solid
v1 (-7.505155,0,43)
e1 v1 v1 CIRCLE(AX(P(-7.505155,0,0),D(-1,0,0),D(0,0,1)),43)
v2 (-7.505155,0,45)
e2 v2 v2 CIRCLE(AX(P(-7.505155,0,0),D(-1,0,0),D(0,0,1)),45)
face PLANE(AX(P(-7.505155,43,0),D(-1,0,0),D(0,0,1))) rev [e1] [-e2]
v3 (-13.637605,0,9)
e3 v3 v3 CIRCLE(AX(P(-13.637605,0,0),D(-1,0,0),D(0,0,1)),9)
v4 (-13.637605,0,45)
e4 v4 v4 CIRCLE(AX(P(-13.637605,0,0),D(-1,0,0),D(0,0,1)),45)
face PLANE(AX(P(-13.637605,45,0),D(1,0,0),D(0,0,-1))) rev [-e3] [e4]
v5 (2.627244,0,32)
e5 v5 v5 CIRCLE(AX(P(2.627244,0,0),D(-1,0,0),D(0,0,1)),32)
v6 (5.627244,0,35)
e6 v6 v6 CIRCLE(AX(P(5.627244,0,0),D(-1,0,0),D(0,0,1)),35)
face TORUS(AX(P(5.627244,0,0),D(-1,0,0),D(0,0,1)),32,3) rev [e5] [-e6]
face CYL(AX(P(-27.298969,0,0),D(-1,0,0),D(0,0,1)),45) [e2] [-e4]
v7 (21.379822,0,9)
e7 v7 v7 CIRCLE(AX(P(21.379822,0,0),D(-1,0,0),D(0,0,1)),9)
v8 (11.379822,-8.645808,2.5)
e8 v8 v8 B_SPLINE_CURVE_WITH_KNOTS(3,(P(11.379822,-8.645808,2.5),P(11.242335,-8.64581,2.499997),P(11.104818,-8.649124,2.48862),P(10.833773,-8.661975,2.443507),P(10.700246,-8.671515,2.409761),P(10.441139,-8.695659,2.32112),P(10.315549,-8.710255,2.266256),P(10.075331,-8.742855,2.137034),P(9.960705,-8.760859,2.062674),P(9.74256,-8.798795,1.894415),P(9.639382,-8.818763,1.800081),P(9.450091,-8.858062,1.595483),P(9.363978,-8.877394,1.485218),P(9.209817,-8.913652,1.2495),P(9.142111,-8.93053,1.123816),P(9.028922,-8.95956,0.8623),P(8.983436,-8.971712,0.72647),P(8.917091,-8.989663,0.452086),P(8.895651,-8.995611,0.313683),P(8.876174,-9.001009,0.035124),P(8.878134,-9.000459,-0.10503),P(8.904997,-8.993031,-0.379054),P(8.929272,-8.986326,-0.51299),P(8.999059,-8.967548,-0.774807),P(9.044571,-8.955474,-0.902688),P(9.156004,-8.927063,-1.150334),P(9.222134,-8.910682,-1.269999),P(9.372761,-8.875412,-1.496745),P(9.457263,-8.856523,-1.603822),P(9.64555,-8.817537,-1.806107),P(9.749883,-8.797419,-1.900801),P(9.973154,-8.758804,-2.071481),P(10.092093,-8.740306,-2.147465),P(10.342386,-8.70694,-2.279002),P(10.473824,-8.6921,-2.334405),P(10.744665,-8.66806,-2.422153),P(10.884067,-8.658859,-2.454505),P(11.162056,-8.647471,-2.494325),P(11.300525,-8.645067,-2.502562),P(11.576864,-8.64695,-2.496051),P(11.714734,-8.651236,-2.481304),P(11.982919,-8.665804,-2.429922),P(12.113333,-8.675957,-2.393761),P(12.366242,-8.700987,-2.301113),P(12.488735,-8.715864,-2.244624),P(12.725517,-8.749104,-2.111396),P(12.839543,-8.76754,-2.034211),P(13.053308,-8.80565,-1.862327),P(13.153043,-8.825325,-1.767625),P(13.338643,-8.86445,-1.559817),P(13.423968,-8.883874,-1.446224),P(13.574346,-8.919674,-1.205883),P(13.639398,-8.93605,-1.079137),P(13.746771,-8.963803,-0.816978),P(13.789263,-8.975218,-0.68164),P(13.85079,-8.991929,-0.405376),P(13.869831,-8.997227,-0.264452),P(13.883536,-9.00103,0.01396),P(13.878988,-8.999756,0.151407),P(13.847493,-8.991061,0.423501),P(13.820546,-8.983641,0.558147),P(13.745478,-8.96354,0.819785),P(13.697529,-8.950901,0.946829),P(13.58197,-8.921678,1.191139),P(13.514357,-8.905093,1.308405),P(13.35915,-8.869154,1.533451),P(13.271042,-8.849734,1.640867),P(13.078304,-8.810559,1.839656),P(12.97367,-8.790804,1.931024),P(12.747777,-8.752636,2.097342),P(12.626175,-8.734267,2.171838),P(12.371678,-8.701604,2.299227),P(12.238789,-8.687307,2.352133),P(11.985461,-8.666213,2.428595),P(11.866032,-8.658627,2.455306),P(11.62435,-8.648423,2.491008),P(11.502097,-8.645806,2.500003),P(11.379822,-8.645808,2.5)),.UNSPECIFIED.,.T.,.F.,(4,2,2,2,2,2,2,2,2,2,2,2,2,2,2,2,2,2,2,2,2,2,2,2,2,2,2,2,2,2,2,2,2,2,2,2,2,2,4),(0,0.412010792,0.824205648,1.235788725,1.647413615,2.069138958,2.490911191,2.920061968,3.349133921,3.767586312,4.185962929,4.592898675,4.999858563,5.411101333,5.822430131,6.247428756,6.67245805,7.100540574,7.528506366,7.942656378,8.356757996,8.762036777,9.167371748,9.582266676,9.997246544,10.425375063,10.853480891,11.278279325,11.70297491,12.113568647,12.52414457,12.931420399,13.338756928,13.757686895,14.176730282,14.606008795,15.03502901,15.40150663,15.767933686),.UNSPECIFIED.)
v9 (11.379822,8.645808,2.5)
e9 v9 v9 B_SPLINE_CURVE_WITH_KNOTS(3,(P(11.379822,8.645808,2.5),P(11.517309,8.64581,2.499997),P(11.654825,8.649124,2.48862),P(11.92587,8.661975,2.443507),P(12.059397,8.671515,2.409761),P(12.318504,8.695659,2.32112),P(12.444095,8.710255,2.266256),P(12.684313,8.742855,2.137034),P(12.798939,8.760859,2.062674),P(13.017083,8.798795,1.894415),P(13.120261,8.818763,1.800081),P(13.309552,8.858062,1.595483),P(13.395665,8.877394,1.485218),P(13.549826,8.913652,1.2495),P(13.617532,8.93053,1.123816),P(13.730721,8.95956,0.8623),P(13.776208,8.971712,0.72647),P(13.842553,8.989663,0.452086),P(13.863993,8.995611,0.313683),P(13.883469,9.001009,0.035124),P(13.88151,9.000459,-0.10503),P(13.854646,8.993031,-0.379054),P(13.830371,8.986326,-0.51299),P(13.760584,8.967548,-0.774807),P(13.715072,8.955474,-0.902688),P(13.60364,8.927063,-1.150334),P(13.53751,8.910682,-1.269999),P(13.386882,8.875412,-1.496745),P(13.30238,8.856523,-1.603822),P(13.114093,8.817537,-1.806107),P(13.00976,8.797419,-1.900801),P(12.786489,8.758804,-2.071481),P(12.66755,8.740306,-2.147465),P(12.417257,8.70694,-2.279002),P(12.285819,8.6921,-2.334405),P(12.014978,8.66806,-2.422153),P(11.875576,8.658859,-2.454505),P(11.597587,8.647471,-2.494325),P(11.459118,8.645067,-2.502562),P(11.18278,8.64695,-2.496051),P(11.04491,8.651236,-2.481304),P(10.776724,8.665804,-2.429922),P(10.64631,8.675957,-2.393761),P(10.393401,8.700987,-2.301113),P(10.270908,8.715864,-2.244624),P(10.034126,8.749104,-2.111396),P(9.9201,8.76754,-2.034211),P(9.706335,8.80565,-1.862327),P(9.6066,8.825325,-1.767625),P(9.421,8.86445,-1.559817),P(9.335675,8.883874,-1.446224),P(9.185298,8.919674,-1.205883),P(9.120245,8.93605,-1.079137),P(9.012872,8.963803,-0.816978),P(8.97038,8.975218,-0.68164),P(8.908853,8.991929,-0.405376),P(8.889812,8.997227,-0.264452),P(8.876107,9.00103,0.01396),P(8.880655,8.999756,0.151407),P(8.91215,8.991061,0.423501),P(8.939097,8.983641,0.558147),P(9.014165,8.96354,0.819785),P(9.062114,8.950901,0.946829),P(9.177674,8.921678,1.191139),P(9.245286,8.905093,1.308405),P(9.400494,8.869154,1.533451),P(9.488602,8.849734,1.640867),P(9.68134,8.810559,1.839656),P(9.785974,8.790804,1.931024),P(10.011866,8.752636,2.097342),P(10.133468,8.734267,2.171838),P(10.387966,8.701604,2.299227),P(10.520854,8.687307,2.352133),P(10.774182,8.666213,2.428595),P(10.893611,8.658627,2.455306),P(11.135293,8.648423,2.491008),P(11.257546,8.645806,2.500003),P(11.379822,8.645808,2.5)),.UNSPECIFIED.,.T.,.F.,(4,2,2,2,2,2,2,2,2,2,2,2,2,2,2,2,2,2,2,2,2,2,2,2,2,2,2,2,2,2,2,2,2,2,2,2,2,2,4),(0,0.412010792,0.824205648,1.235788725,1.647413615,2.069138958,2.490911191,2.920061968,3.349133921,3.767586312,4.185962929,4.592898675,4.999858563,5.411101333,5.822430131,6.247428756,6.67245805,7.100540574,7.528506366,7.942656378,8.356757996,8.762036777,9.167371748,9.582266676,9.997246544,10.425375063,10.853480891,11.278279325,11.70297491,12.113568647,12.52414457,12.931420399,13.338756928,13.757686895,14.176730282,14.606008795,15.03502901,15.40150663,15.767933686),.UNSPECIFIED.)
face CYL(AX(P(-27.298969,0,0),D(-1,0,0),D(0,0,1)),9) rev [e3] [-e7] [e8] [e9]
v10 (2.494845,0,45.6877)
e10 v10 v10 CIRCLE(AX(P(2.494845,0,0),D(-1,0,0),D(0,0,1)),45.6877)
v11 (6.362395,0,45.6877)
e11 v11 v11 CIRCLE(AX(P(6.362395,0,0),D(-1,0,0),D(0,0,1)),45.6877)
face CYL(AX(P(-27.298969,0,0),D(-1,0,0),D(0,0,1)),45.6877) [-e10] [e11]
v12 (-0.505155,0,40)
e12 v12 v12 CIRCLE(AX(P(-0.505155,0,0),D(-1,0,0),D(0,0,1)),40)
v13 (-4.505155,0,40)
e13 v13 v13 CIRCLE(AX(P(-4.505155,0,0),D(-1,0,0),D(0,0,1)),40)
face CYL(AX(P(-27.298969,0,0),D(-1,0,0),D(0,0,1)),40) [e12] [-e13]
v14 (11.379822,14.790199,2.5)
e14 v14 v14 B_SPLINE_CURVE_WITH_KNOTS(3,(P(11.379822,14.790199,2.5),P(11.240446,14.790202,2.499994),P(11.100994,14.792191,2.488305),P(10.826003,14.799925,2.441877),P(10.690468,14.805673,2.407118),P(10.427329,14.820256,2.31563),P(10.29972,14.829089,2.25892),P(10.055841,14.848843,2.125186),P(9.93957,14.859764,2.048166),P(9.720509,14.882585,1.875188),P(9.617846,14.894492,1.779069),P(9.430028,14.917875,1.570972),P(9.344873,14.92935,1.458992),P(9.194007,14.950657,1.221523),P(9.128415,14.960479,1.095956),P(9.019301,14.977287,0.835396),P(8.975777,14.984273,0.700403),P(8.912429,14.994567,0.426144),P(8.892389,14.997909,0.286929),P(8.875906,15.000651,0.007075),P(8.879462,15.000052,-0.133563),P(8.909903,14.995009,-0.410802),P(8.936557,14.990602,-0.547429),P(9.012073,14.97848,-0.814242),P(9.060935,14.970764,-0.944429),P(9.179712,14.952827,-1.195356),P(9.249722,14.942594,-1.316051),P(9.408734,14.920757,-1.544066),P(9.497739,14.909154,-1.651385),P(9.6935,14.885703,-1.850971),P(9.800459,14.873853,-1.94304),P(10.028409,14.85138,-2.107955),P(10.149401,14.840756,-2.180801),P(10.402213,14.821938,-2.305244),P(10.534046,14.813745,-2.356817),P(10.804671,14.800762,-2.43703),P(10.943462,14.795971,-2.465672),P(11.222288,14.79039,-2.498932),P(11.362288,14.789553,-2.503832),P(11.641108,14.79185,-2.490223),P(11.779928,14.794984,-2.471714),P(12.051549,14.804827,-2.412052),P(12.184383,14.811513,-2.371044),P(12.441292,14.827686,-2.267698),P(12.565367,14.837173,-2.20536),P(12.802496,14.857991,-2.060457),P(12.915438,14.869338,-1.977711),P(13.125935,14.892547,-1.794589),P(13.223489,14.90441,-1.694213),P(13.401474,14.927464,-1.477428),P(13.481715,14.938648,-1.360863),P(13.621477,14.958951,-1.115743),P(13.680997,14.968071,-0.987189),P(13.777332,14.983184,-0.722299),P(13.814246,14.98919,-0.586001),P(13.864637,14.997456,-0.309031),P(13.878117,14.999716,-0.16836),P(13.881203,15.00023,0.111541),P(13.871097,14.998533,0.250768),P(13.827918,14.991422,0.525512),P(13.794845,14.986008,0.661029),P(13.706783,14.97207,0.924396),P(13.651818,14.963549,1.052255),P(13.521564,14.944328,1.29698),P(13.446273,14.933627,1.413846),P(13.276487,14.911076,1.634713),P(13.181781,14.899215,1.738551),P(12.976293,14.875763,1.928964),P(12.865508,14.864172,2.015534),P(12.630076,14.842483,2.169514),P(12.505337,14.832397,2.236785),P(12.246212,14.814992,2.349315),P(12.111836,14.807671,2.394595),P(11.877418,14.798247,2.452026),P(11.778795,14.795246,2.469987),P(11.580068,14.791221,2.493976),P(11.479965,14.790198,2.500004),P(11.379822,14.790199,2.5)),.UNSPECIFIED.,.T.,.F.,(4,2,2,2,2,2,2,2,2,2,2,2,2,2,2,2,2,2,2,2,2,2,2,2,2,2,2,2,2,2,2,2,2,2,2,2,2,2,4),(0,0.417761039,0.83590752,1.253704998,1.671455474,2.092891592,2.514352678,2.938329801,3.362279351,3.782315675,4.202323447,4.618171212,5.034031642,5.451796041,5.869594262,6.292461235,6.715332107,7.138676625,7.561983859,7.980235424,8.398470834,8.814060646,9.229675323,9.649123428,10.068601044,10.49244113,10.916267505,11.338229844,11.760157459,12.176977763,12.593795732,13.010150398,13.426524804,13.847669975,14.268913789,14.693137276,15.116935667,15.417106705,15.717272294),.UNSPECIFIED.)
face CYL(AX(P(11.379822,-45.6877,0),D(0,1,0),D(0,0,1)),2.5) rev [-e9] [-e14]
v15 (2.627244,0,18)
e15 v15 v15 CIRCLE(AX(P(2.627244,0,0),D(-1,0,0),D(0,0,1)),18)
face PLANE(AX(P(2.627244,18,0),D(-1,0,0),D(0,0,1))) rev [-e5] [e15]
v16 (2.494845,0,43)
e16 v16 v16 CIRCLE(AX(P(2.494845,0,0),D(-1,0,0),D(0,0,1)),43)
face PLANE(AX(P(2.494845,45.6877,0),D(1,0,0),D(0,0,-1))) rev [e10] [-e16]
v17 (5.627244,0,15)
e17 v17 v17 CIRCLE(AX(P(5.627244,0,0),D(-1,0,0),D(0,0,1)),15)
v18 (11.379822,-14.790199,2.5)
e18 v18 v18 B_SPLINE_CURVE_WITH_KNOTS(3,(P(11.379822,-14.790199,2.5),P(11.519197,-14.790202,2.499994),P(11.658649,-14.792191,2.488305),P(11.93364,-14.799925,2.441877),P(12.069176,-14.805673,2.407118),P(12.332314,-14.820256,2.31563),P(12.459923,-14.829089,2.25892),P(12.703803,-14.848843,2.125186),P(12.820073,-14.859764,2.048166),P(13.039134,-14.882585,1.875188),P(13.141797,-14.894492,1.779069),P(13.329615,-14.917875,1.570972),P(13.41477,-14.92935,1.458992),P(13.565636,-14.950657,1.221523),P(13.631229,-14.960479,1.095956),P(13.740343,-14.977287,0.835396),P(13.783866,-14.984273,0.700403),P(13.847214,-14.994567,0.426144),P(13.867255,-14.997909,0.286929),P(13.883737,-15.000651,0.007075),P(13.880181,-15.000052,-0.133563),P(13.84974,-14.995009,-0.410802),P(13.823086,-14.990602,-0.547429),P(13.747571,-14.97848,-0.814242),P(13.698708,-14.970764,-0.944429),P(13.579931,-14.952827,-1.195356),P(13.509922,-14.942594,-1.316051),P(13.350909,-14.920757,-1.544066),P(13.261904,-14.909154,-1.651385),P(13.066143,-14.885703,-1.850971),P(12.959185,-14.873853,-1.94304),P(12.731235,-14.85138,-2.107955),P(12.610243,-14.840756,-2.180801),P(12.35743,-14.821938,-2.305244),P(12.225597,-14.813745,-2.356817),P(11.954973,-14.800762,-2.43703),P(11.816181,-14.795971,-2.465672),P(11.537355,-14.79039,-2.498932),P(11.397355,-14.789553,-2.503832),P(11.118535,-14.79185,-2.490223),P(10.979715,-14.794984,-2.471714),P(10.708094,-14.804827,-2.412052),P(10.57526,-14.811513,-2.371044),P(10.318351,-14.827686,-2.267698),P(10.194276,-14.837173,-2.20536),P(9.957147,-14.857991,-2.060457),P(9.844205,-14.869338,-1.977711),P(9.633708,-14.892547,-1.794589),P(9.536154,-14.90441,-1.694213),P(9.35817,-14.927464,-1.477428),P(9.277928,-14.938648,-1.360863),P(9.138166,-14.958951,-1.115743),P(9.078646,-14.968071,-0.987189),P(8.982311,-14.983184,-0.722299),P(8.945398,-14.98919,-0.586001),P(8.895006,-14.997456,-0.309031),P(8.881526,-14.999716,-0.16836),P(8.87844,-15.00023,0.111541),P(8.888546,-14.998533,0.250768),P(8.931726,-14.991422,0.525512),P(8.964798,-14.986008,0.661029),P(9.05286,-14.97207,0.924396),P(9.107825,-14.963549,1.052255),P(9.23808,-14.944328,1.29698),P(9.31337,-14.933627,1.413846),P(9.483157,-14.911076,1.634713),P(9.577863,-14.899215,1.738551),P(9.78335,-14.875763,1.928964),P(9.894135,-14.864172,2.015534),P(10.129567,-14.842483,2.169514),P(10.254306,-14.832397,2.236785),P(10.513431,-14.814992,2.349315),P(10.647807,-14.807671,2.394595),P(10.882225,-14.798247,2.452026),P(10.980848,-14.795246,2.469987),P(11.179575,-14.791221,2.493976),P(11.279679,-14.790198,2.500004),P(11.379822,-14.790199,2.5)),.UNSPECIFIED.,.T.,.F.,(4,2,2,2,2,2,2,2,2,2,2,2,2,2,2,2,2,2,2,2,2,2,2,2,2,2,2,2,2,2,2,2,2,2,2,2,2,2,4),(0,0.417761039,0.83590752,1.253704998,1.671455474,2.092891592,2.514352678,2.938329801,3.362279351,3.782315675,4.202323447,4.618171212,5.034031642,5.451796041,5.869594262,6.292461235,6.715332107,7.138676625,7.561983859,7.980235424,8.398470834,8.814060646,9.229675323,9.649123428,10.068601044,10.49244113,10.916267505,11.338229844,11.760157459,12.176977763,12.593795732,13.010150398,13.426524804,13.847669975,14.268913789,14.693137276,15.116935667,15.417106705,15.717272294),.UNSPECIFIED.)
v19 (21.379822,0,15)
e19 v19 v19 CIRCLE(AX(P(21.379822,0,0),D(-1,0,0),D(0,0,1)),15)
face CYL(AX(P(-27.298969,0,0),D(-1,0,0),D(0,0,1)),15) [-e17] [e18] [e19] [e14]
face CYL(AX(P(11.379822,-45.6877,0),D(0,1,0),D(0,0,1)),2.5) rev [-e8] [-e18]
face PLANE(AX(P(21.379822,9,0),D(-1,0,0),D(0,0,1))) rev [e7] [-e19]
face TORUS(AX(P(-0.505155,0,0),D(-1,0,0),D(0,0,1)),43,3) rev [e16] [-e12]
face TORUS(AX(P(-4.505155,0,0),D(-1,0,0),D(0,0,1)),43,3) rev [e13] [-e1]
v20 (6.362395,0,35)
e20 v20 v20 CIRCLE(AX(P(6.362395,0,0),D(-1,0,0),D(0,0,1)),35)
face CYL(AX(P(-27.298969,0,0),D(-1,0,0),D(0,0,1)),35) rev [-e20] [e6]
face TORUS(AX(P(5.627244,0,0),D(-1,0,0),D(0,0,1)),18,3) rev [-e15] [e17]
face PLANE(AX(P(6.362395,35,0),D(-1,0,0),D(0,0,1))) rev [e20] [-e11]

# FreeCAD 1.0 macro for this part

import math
import FreeCAD as App
import Part
import Sketcher

V = App.Vector
Q = App.Units.Quantity

doc = App.newDocument("Part")
body = doc.addObject("PartDesign::Body", "Body")

sketch1 = body.newObject("Sketcher::SketchObject", "Sketch")
sketch1.AttachmentSupport = (doc.getObject("XY_Plane"), [""])
sketch1.MapMode = "FlatFace"
sketch1.addGeometry([
    Part.LineSegment(V(-13.6, 9, 0), V(21.4, 9, 0)),
    Part.LineSegment(V(21.4, 9, 0), V(21.4, 15, 0)),
    Part.LineSegment(V(21.4, 15, 0), V(5.6, 15, 0)),
    Part.ArcOfCircle(Part.Circle(V(5.6, 18, 0), V(0, 0, 1), 3), math.radians(180), math.radians(270)),
    Part.LineSegment(V(2.6, 18, 0), V(2.6, 32, 0)),
    Part.ArcOfCircle(Part.Circle(V(5.6, 32, 0), V(0, 0, 1), 3), math.radians(90), math.radians(180)),
    Part.LineSegment(V(5.6, 35, 0), V(6.4, 35, 0)),
    Part.LineSegment(V(6.4, 35, 0), V(6.4, 45.7, 0)),
    Part.LineSegment(V(6.4, 45.7, 0), V(2.5, 45.7, 0)),
    Part.LineSegment(V(2.5, 45.7, 0), V(2.5, 43, 0)),
    Part.ArcOfCircle(Part.Circle(V(-0.5, 43, 0), V(0, 0, 1), 3), math.radians(-90), math.radians(0)),
    Part.LineSegment(V(-0.5, 40, 0), V(-4.5, 40, 0)),
    Part.ArcOfCircle(Part.Circle(V(-4.5, 43, 0), V(0, 0, 1), 3), math.radians(180), math.radians(270)),
    Part.LineSegment(V(-7.5, 43, 0), V(-7.5, 45, 0)),
    Part.LineSegment(V(-7.5, 45, 0), V(-13.6, 45, 0)),
    Part.LineSegment(V(-13.6, 45, 0), V(-13.6, 9, 0)),
], False)
sketch1.addConstraint([
    Sketcher.Constraint("Coincident", 0, 2, 1, 1),
    Sketcher.Constraint("Coincident", 1, 2, 2, 1),
    Sketcher.Constraint("Tangent", 2, 2, 3, 2),
    Sketcher.Constraint("Tangent", 3, 1, 4, 1),
    Sketcher.Constraint("Tangent", 4, 2, 5, 2),
    Sketcher.Constraint("Tangent", 5, 1, 6, 1),
    Sketcher.Constraint("Coincident", 6, 2, 7, 1),
    Sketcher.Constraint("Coincident", 7, 2, 8, 1),
    Sketcher.Constraint("Coincident", 8, 2, 9, 1),
    Sketcher.Constraint("Tangent", 9, 2, 10, 2),
    Sketcher.Constraint("Tangent", 10, 1, 11, 1),
    Sketcher.Constraint("Tangent", 11, 2, 12, 2),
    Sketcher.Constraint("Tangent", 12, 1, 13, 1),
    Sketcher.Constraint("Coincident", 13, 2, 14, 1),
    Sketcher.Constraint("Coincident", 14, 2, 15, 1),
    Sketcher.Constraint("Coincident", 15, 2, 0, 1),
    Sketcher.Constraint("Horizontal", 0),
    Sketcher.Constraint("Vertical", 1),
    Sketcher.Constraint("Horizontal", 2),
    Sketcher.Constraint("Vertical", 4),
    Sketcher.Constraint("Horizontal", 6),
    Sketcher.Constraint("Vertical", 7),
    Sketcher.Constraint("Horizontal", 8),
    Sketcher.Constraint("Vertical", 9),
    Sketcher.Constraint("Horizontal", 11),
    Sketcher.Constraint("Vertical", 13),
    Sketcher.Constraint("Horizontal", 14),
    Sketcher.Constraint("Vertical", 15),
    Sketcher.Constraint("Equal", 3, 5),
    Sketcher.Constraint("Equal", 5, 10),
    Sketcher.Constraint("Equal", 10, 12),
    Sketcher.Constraint("Radius", 3, Q("3 mm")),
    Sketcher.Constraint("DistanceX", 11, 2, 11, 1, Q("4 mm")),
    Sketcher.Constraint("DistanceY", 1, 1, 1, 2, Q("6 mm")),
    Sketcher.Constraint("DistanceY", 4, 1, 4, 2, Q("14 mm")),
    Sketcher.Constraint("DistanceY", 13, 1, 13, 2, Q("2 mm")),
    Sketcher.Constraint("DistanceY", 15, 2, 15, 1, Q("36 mm")),
    Sketcher.Constraint("DistanceY", -1, 1, 3, 3, Q("18 mm")),
    Sketcher.Constraint("DistanceY", 7, 1, 7, 2, Q("10.6877 mm")),
    Sketcher.Constraint("DistanceX", 6, 1, 6, 2, Q("0.735151 mm")),
    Sketcher.Constraint("DistanceX", 8, 2, 8, 1, Q("3.86755 mm")),
    Sketcher.Constraint("DistanceX", 14, 2, 14, 1, Q("6.13245 mm")),
    Sketcher.Constraint("DistanceX", 0, 1, 0, 2, Q("35.017426 mm")),
    Sketcher.Constraint("DistanceX", -1, 1, 0, 2, Q("21.379822 mm")),
])
revolution = body.newObject("PartDesign::Revolution", "Revolution")
revolution.Profile = sketch1
revolution.ReferenceAxis = (sketch1, ["H_Axis"])
revolution.Angle = 360

sketch2 = body.newObject("Sketcher::SketchObject", "Sketch001")
sketch2.AttachmentSupport = (doc.getObject("XZ_Plane"), [""])
sketch2.MapMode = "FlatFace"
sketch2.AttachmentOffset = App.Placement(V(0, 0, -15), App.Rotation())
sketch2.addGeometry(Part.Circle(V(11.4, 0, 0), V(0, 0, 1), 2.5), False)
sketch2.addConstraint([
    Sketcher.Constraint("PointOnObject", 0, 3, -1),
    Sketcher.Constraint("Diameter", 0, Q("5 mm")),
    Sketcher.Constraint("DistanceX", -1, 1, 0, 3, Q("11.379822 mm")),
])
pocket1 = body.newObject("PartDesign::Pocket", "Pocket")
pocket1.Profile = sketch2
pocket1.Type = "ThroughAll"
pocket1.Reversed = True

doc.recompute()
